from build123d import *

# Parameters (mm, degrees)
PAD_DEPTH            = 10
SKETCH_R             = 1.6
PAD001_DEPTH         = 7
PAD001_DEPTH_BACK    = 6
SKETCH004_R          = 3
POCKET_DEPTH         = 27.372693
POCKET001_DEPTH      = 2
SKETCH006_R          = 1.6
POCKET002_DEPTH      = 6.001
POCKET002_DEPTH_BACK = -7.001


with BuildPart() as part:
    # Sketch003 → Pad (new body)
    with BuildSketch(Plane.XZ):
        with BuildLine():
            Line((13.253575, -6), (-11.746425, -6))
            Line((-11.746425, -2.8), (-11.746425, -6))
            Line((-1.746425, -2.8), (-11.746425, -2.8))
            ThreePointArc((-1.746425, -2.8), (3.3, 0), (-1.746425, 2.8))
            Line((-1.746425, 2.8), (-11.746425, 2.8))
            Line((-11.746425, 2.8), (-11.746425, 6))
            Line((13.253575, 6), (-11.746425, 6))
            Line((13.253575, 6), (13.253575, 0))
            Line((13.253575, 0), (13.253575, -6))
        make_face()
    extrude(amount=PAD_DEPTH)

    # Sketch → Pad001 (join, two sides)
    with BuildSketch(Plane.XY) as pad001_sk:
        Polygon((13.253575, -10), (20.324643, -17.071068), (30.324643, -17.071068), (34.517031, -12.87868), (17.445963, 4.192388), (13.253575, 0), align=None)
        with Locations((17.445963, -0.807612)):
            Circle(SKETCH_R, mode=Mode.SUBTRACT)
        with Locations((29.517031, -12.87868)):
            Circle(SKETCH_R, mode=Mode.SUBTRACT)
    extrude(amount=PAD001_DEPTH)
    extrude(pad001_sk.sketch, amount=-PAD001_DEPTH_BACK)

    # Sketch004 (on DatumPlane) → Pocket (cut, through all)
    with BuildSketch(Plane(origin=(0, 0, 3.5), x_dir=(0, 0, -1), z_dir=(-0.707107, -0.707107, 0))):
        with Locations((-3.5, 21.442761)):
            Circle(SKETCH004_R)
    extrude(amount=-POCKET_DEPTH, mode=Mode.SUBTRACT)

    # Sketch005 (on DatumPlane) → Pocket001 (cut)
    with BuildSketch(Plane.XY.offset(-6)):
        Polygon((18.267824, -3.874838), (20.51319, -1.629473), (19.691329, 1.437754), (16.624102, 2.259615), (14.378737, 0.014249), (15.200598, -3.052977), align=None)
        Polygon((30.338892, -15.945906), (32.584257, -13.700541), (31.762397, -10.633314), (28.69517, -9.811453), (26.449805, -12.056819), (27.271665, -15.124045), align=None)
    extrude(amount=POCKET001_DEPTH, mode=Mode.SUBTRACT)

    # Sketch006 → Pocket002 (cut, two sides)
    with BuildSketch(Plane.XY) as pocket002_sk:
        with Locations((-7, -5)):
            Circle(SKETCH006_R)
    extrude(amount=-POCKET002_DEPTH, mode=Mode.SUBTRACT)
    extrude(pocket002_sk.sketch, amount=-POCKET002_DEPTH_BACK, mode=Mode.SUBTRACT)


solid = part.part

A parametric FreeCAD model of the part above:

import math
import FreeCAD as App
import Part
import Sketcher

V = App.Vector
Q = App.Units.Quantity


def add_polygon(sketch, points):
    """Adds a closed chain of lines whose ends are joined by coincident constraints."""
    first, n = sketch.GeometryCount, len(points)
    for a, b in zip(points, points[1:] + points[:1]):
        sketch.addGeometry(Part.LineSegment(App.Vector(*a, 0), App.Vector(*b, 0)), False)
    for i in range(n):
        sketch.addConstraint(Sketcher.Constraint("Coincident", first + i, 2, first + (i + 1) % n, 1))

doc = App.newDocument("Part")
params = doc.addObject("Spreadsheet::Sheet", "Params")
for row, (alias, value) in enumerate([
    ("sketch1_radius", "3.3 mm"),
    ("sketch1_width", "25 mm"),
    ("sketch1_width2", "10 mm"),
    ("sketch1_height", "12 mm"),
    ("sketch1_height2", "3.2 mm"),
    ("pad1_length", "10 mm"),
    ("sketch2_diameter", "3.2 mm"),
    ("sketch2_width", "10 mm"),
    ("sketch2_length", "10 mm"),
    ("pad2_length", "7 mm"),
    ("pad2_length2", "6 mm"),
    ("sketch3_diameter", "6 mm"),
    ("pocket2_length", "2 mm"),
    ("sketch5_diameter", "3.2 mm"),
], start=1):
    params.set(f"A{row}", alias)
    params.set(f"B{row}", "=" + value)
    params.setAlias(f"B{row}", alias)

body = doc.addObject("PartDesign::Body", "Body")

# Sketch on XZ plane
sketch1 = body.newObject("Sketcher::SketchObject", "Sketch")
sketch1.AttachmentSupport = (doc.getObject("XZ_Plane"), [""])
sketch1.MapMode = "FlatFace"
sketch1.addGeometry(Part.LineSegment(V(-11.7, -6, 0), V(13.3, -6, 0)), False)
sketch1.addGeometry(Part.LineSegment(V(13.3, -6, 0), V(13.3, 6, 0)), False)
sketch1.addGeometry(Part.LineSegment(V(13.3, 6, 0), V(-11.7, 6, 0)), False)
sketch1.addGeometry(Part.LineSegment(V(-11.7, 6, 0), V(-11.7, 2.8, 0)), False)
sketch1.addGeometry(Part.LineSegment(V(-11.7, 2.8, 0), V(-1.7, 2.8, 0)), False)
sketch1.addGeometry(Part.ArcOfCircle(Part.Circle(V(0, 0, 0), V(0, 0, 1), 3.3), math.radians(-122), math.radians(122)), False)
sketch1.addGeometry(Part.LineSegment(V(-1.7, -2.8, 0), V(-11.7, -2.8, 0)), False)
sketch1.addGeometry(Part.LineSegment(V(-11.7, -2.8, 0), V(-11.7, -6, 0)), False)
sketch1.addConstraint(Sketcher.Constraint("Coincident", 0, 2, 1, 1))
sketch1.addConstraint(Sketcher.Constraint("Coincident", 1, 2, 2, 1))
sketch1.addConstraint(Sketcher.Constraint("Coincident", 2, 2, 3, 1))
sketch1.addConstraint(Sketcher.Constraint("Coincident", 3, 2, 4, 1))
sketch1.addConstraint(Sketcher.Constraint("Coincident", 4, 2, 5, 2))
sketch1.addConstraint(Sketcher.Constraint("Coincident", 5, 1, 6, 1))
sketch1.addConstraint(Sketcher.Constraint("Coincident", 6, 2, 7, 1))
sketch1.addConstraint(Sketcher.Constraint("Coincident", 7, 2, 0, 1))
sketch1.addConstraint(Sketcher.Constraint("Horizontal", 0))
sketch1.addConstraint(Sketcher.Constraint("Vertical", 1))
sketch1.addConstraint(Sketcher.Constraint("Horizontal", 2))
sketch1.addConstraint(Sketcher.Constraint("Vertical", 3))
sketch1.addConstraint(Sketcher.Constraint("Horizontal", 4))
sketch1.addConstraint(Sketcher.Constraint("Horizontal", 6))
sketch1.addConstraint(Sketcher.Constraint("Vertical", 7))
sketch1.addConstraint(Sketcher.Constraint("Coincident", 5, 3, -1, 1))
sketch1.addConstraint(Sketcher.Constraint("Symmetric", 3, 2, 6, 2, -1))
sketch1.addConstraint(Sketcher.Constraint("Equal", 3, 7))
sketch1.addConstraint(Sketcher.Constraint("Radius", 5, Q("3.3 mm")))
sketch1.addConstraint(Sketcher.Constraint("DistanceX", 0, 1, 0, 2, Q("25 mm")))
sketch1.addConstraint(Sketcher.Constraint("DistanceX", 4, 1, 4, 2, Q("10 mm")))
sketch1.addConstraint(Sketcher.Constraint("DistanceY", 1, 1, 1, 2, Q("12 mm")))
sketch1.addConstraint(Sketcher.Constraint("DistanceY", 3, 2, 3, 1, Q("3.2 mm")))
sketch1.setExpression("Constraints[18]", "Params.sketch1_radius")
sketch1.setExpression("Constraints[19]", "Params.sketch1_width")
sketch1.setExpression("Constraints[20]", "Params.sketch1_width2")
sketch1.setExpression("Constraints[21]", "Params.sketch1_height")
sketch1.setExpression("Constraints[22]", "Params.sketch1_height2")
pad1 = body.newObject("PartDesign::Pad", "Pad")
pad1.Profile = sketch1
pad1.setExpression("Length", "Params.pad1_length")

# Sketch on XY plane
sketch2 = body.newObject("Sketcher::SketchObject", "Sketch001")
sketch2.AttachmentSupport = (doc.getObject("XY_Plane"), [""])
sketch2.MapMode = "FlatFace"
add_polygon(sketch2, [(13.3, -10), (20.3, -17.1), (30.3, -17.1), (34.5, -12.9), (17.4, 4.2), (13.3, 0)])  # lines 0-5
sketch2.addGeometry(Part.Circle(V(29.5, -12.9, 0), V(0, 0, 1), 1.6), False)  # 6
sketch2.addGeometry(Part.Circle(V(17.4, -0.8, 0), V(0, 0, 1), 1.6), False)  # 7
sketch2.addConstraint(Sketcher.Constraint("Horizontal", 1))
sketch2.addConstraint(Sketcher.Constraint("Vertical", 5))
sketch2.addConstraint(Sketcher.Constraint("Equal", 6, 7))
sketch2.addConstraint(Sketcher.Constraint("PointOnObject", 4, 2, -1))
sketch2.addConstraint(Sketcher.Constraint("Perpendicular", 0, 2))
sketch2.addConstraint(Sketcher.Constraint("Perpendicular", 2, 3))
sketch2.addConstraint(Sketcher.Constraint("Perpendicular", 3, 4))
sketch2.addConstraint(Sketcher.Constraint("Horizontal", 6, 3, 2, 2))
sketch2.addConstraint(Sketcher.Constraint("Vertical", 7, 3, 3, 2))
sketch2.addConstraint(Sketcher.Constraint("Equal", 1, 5))
sketch2.addConstraint(Sketcher.Constraint("Equal", 2, 4))
sketch2.addConstraint(Sketcher.Constraint("Diameter", 6, Q("3.2 mm")))
sketch2.addConstraint(Sketcher.Constraint("DistanceX", 1, 1, 1, 2, Q("10 mm")))
sketch2.addConstraint(Sketcher.Constraint("Distance", 0, Q("10 mm")))
sketch2.addConstraint(Sketcher.Constraint("DistanceX", 6, 3, 2, 2, Q("5 mm")))
sketch2.addConstraint(Sketcher.Constraint("DistanceY", 7, 3, 3, 2, Q("5 mm")))
sketch2.addConstraint(Sketcher.Constraint("Distance", 2, Q("5.928932 mm")))
sketch2.addConstraint(Sketcher.Constraint("DistanceX", -1, 1, 6, 3, Q("29.517031 mm")))
sketch2.setExpression("Constraints[17]", "Params.sketch2_diameter")
sketch2.setExpression("Constraints[18]", "Params.sketch2_width")
sketch2.setExpression("Constraints[19]", "Params.sketch2_length")
pad2 = body.newObject("PartDesign::Pad", "Pad001")
pad2.Profile = sketch2
pad2.Type = "TwoLengths"
pad2.setExpression("Length", "Params.pad2_length")
pad2.setExpression("Length2", "Params.pad2_length2")

# Sketch on an angled plane
sketch3 = body.newObject("Sketcher::SketchObject", "Sketch002")
sketch3.Placement = App.Placement(V(0, 0, 3.5), App.Rotation(V(0, 0, -1), V(0.707106781, -0.707106781, 0), V(-0.707106781, -0.707106781, 0), "ZXY"))
sketch3.addGeometry(Part.Circle(V(-3.5, 21.4, 0), V(0, 0, 1), 3), False)
sketch3.addConstraint(Sketcher.Constraint("Diameter", 0, Q("6 mm")))
sketch3.addConstraint(Sketcher.Constraint("DistanceX", 0, 3, -1, 1, Q("3.5 mm")))
sketch3.addConstraint(Sketcher.Constraint("DistanceY", -1, 1, 0, 3, Q("21.442761 mm")))
sketch3.setExpression("Constraints[0]", "Params.sketch3_diameter")
pocket1 = body.newObject("PartDesign::Pocket", "Pocket")
pocket1.Profile = sketch3
pocket1.Type = "ThroughAll"

# Sketch on XY plane
sketch4 = body.newObject("Sketcher::SketchObject", "Sketch003")
sketch4.AttachmentSupport = (doc.getObject("XY_Plane"), [""])
sketch4.MapMode = "FlatFace"
sketch4.AttachmentOffset = App.Placement(V(0, 0, -6), App.Rotation())
add_polygon(sketch4, [(18.3, -3.9), (20.5, -1.6), (19.7, 1.4), (16.6, 2.3), (14.4, 0), (15.2, -3.1)])  # lines 0-5
add_polygon(sketch4, [(30.3, -15.9), (32.6, -13.7), (31.8, -10.6), (28.7, -9.8), (26.4, -12.1), (27.3, -15.1)])  # lines 6-11
sketch4.addConstraint(Sketcher.Constraint("Parallel", 0, 3))
sketch4.addConstraint(Sketcher.Constraint("Parallel", 1, 4))
sketch4.addConstraint(Sketcher.Constraint("Parallel", 2, 5))
sketch4.addConstraint(Sketcher.Constraint("Parallel", 3, 6))
sketch4.addConstraint(Sketcher.Constraint("Parallel", 4, 7))
sketch4.addConstraint(Sketcher.Constraint("Parallel", 5, 8))
sketch4.addConstraint(Sketcher.Constraint("Parallel", 6, 9))
sketch4.addConstraint(Sketcher.Constraint("Parallel", 7, 10))
sketch4.addConstraint(Sketcher.Constraint("Parallel", 8, 11))
sketch4.addConstraint(Sketcher.Constraint("Equal", 0, 1))
sketch4.addConstraint(Sketcher.Constraint("Equal", 1, 2))
sketch4.addConstraint(Sketcher.Constraint("Equal", 2, 3))
sketch4.addConstraint(Sketcher.Constraint("Equal", 5, 6))
sketch4.addConstraint(Sketcher.Constraint("Equal", 6, 7))
sketch4.addConstraint(Sketcher.Constraint("Equal", 7, 8))
sketch4.addConstraint(Sketcher.Constraint("Equal", 8, 9))
sketch4.addConstraint(Sketcher.Constraint("Angle", 0, Q("44.999987 deg")))
sketch4.addConstraint(Sketcher.Constraint("Angle", 1, Q("105 deg")))
sketch4.addConstraint(Sketcher.Constraint("Angle", 2, Q("165 deg")))
sketch4.addConstraint(Sketcher.Constraint("DistanceX", 4, 2, 7, 2, Q("16.561799 mm")))
sketch4.addConstraint(Sketcher.Constraint("DistanceX", -1, 1, 0, 2, Q("20.51319 mm")))
sketch4.addConstraint(Sketcher.Constraint("DistanceX", -1, 1, 1, 2, Q("19.691329 mm")))
sketch4.addConstraint(Sketcher.Constraint("DistanceY", -1, 1, 3, 2, Q("0.014249 mm")))
sketch4.addConstraint(Sketcher.Constraint("DistanceY", 6, 2, -1, 1, Q("13.700541 mm")))
pocket2 = body.newObject("PartDesign::Pocket", "Pocket001")
pocket2.Profile = sketch4
pocket2.setExpression("Length", "Params.pocket2_length")
pocket2.Reversed = True

# Sketch on XY plane
sketch5 = body.newObject("Sketcher::SketchObject", "Sketch004")
sketch5.AttachmentSupport = (doc.getObject("XY_Plane"), [""])
sketch5.MapMode = "FlatFace"
sketch5.addGeometry(Part.Circle(V(-7, -5, 0), V(0, 0, 1), 1.6), False)
sketch5.addConstraint(Sketcher.Constraint("Diameter", 0, Q("3.2 mm")))
sketch5.addConstraint(Sketcher.Constraint("DistanceX", 0, 3, -1, 1, Q("7 mm")))
sketch5.addConstraint(Sketcher.Constraint("DistanceY", 0, 3, -1, 1, Q("5 mm")))
sketch5.setExpression("Constraints[0]", "Params.sketch5_diameter")
pocket3 = body.newObject("PartDesign::Pocket", "Pocket002")
pocket3.Profile = sketch5
pocket3.Type = "ThroughAll"
pocket3.Midplane = True

doc.recompute()
